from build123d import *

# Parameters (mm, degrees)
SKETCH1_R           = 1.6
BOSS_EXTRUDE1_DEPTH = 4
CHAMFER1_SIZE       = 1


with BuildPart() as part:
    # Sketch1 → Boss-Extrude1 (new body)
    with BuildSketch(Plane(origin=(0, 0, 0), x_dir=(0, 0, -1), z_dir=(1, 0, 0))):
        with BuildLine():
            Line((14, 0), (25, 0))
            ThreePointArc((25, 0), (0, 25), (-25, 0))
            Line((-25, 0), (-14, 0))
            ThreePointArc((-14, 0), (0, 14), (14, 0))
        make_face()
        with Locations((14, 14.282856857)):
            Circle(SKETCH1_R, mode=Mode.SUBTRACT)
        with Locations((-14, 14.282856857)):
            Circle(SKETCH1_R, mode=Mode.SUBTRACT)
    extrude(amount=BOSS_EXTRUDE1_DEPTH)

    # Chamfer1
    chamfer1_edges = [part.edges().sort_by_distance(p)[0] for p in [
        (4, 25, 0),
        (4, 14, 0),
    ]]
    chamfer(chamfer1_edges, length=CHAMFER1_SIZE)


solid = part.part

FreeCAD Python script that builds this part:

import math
import FreeCAD as App
import Part
import Sketcher
from FreeCAD import Vector
Q = App.Units.Quantity


def edges_at(feature, points):
    """Names of the edges that pass closest to the given points."""
    edges = feature.Shape.Edges
    near = lambda p: min(range(len(edges)), key=lambda i: edges[i].distToShape(Part.Vertex(*p))[0])
    return sorted({f"Edge{near(p) + 1}" for p in points})

doc = App.newDocument("Part")
params = doc.addObject("Spreadsheet::Sheet", "Params")
for row, (alias, value) in enumerate([
    ("sketch1_radius", "25 mm"),
    ("sketch1_radius2", "14 mm"),
    ("sketch1_diameter", "3.2 mm"),
    ("pad1_length", "4 mm"),
    ("chamfer_size", "1 mm"),
], start=1):
    params.set(f"A{row}", alias)
    params.set(f"B{row}", "=" + value)
    params.setAlias(f"B{row}", alias)

body = doc.addObject("PartDesign::Body", "Body")

# Sketch on YZ plane
sketch1 = doc.addObject("Sketcher::SketchObject", "Sketch")
body.addObject(sketch1)
sketch1.AttachmentSupport = (doc.YZ_Plane, [""])
sketch1.MapMode = "FlatFace"
sketch1.addGeometry(Part.LineSegment(Vector(0, -14, 0), Vector(0, -25, 0)), False)
sketch1.addGeometry(Part.ArcOfCircle(Part.Circle(Vector(0, 0, 0), Vector(0, 0, 1), 25), math.radians(-90), math.radians(90)), False)
sketch1.addGeometry(Part.LineSegment(Vector(0, 25, 0), Vector(0, 14, 0)), False)
sketch1.addGeometry(Part.ArcOfCircle(Part.Circle(Vector(0, 0, 0), Vector(0, 0, 1), 14), math.radians(-90), math.radians(90)), False)
sketch1.addGeometry(Part.Circle(Vector(14.3, 14, 0), Vector(0, 0, 1), 1.6), False)
sketch1.addGeometry(Part.Circle(Vector(14.3, -14, 0), Vector(0, 0, 1), 1.6), False)
sketch1.addConstraint(Sketcher.Constraint("Coincident", 0, 2, 1, 1))
sketch1.addConstraint(Sketcher.Constraint("Coincident", 1, 2, 2, 1))
sketch1.addConstraint(Sketcher.Constraint("Coincident", 2, 2, 3, 2))
sketch1.addConstraint(Sketcher.Constraint("Coincident", 3, 1, 0, 1))
sketch1.addConstraint(Sketcher.Constraint("Vertical", 0))
sketch1.addConstraint(Sketcher.Constraint("Vertical", 2))
sketch1.addConstraint(Sketcher.Constraint("Coincident", 1, 3, -1, 1))
sketch1.addConstraint(Sketcher.Constraint("Coincident", 3, 3, -1, 1))
sketch1.addConstraint(Sketcher.Constraint("Equal", 4, 5))
sketch1.addConstraint(Sketcher.Constraint("Symmetric", 4, 3, 5, 3, -1))
sketch1.addConstraint(Sketcher.Constraint("PointOnObject", 0, 2, -2))
sketch1.addConstraint(Sketcher.Constraint("PointOnObject", 1, 2, -2))
sketch1.addConstraint(Sketcher.Constraint("Horizontal", 4, 3, 2, 2))
sketch1.addConstraint(Sketcher.Constraint("Radius", 1, Q("25 mm")))
sketch1.addConstraint(Sketcher.Constraint("Radius", 3, Q("14 mm")))
sketch1.addConstraint(Sketcher.Constraint("Diameter", 4, Q("3.2 mm")))
sketch1.addConstraint(Sketcher.Constraint("DistanceX", -1, 1, 4, 3, Q("14.282857 mm")))
sketch1.setExpression("Constraints[13]", "Params.sketch1_radius")
sketch1.setExpression("Constraints[14]", "Params.sketch1_radius2")
sketch1.setExpression("Constraints[15]", "Params.sketch1_diameter")
pad1 = doc.addObject("PartDesign::Pad", "Pad")
body.addObject(pad1)
pad1.Profile = sketch1
pad1.setExpression("Length", "Params.pad1_length")
doc.recompute()

chamfer = doc.addObject("PartDesign::Chamfer", "Chamfer")
body.addObject(chamfer)
chamfer.Base = (pad1, edges_at(pad1, [(4, 25, 0), (4, 14, 0)]))
chamfer.setExpression("Size", "Params.chamfer_size")

doc.recompute()
